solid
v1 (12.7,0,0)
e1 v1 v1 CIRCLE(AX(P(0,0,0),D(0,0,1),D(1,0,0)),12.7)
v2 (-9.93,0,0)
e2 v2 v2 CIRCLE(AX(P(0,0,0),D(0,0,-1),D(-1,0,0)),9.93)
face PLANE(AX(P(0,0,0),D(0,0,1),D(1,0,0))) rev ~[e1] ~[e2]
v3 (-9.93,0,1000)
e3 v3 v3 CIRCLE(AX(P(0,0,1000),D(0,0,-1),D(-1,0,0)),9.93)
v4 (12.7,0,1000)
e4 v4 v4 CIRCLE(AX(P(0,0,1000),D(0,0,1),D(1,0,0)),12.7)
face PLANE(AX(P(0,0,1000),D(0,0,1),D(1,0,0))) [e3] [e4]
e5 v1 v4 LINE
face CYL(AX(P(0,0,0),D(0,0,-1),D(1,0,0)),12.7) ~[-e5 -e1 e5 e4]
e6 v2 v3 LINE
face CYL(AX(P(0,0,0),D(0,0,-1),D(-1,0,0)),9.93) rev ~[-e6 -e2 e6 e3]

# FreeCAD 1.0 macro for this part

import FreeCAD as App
import Part
import Sketcher
Q = App.Units.Quantity

doc = App.newDocument("Part")
body = doc.addObject("PartDesign::Body", "Body")

# Sketch on XY plane
sketch1 = doc.addObject("Sketcher::SketchObject", "Sketch")
body.addObject(sketch1)
sketch1.AttachmentSupport = (doc.XY_Plane, [""])
sketch1.MapMode = "FlatFace"
sketch1.addGeometry(Part.Circle(App.Vector(0, 0, 0), App.Vector(0, 0, 1), 13), False)
sketch1.addConstraint(Sketcher.Constraint("Coincident", 0, 3, -1, 1))
sketch1.addConstraint(Sketcher.Constraint("Diameter", 0, Q("25.4 mm")))
pad1 = doc.addObject("PartDesign::Pad", "Pad")
body.addObject(pad1)
pad1.Profile = sketch1
pad1.Length = 1000

# Sketch on XY plane
sketch2 = doc.addObject("Sketcher::SketchObject", "Sketch001")
body.addObject(sketch2)
sketch2.AttachmentSupport = (doc.XY_Plane, [""])
sketch2.MapMode = "FlatFace"
sketch2.addGeometry(Part.Circle(App.Vector(0, 0, 0), App.Vector(0, 0, 1), 10), False)
sketch2.addConstraint(Sketcher.Constraint("Coincident", 0, 3, -1, 1))
sketch2.addConstraint(Sketcher.Constraint("Diameter", 0, Q("19.86 mm")))
pocket1 = doc.addObject("PartDesign::Pocket", "Pocket")
body.addObject(pocket1)
pocket1.Profile = sketch2
pocket1.Length = 1000
pocket1.Reversed = True

doc.recompute()
